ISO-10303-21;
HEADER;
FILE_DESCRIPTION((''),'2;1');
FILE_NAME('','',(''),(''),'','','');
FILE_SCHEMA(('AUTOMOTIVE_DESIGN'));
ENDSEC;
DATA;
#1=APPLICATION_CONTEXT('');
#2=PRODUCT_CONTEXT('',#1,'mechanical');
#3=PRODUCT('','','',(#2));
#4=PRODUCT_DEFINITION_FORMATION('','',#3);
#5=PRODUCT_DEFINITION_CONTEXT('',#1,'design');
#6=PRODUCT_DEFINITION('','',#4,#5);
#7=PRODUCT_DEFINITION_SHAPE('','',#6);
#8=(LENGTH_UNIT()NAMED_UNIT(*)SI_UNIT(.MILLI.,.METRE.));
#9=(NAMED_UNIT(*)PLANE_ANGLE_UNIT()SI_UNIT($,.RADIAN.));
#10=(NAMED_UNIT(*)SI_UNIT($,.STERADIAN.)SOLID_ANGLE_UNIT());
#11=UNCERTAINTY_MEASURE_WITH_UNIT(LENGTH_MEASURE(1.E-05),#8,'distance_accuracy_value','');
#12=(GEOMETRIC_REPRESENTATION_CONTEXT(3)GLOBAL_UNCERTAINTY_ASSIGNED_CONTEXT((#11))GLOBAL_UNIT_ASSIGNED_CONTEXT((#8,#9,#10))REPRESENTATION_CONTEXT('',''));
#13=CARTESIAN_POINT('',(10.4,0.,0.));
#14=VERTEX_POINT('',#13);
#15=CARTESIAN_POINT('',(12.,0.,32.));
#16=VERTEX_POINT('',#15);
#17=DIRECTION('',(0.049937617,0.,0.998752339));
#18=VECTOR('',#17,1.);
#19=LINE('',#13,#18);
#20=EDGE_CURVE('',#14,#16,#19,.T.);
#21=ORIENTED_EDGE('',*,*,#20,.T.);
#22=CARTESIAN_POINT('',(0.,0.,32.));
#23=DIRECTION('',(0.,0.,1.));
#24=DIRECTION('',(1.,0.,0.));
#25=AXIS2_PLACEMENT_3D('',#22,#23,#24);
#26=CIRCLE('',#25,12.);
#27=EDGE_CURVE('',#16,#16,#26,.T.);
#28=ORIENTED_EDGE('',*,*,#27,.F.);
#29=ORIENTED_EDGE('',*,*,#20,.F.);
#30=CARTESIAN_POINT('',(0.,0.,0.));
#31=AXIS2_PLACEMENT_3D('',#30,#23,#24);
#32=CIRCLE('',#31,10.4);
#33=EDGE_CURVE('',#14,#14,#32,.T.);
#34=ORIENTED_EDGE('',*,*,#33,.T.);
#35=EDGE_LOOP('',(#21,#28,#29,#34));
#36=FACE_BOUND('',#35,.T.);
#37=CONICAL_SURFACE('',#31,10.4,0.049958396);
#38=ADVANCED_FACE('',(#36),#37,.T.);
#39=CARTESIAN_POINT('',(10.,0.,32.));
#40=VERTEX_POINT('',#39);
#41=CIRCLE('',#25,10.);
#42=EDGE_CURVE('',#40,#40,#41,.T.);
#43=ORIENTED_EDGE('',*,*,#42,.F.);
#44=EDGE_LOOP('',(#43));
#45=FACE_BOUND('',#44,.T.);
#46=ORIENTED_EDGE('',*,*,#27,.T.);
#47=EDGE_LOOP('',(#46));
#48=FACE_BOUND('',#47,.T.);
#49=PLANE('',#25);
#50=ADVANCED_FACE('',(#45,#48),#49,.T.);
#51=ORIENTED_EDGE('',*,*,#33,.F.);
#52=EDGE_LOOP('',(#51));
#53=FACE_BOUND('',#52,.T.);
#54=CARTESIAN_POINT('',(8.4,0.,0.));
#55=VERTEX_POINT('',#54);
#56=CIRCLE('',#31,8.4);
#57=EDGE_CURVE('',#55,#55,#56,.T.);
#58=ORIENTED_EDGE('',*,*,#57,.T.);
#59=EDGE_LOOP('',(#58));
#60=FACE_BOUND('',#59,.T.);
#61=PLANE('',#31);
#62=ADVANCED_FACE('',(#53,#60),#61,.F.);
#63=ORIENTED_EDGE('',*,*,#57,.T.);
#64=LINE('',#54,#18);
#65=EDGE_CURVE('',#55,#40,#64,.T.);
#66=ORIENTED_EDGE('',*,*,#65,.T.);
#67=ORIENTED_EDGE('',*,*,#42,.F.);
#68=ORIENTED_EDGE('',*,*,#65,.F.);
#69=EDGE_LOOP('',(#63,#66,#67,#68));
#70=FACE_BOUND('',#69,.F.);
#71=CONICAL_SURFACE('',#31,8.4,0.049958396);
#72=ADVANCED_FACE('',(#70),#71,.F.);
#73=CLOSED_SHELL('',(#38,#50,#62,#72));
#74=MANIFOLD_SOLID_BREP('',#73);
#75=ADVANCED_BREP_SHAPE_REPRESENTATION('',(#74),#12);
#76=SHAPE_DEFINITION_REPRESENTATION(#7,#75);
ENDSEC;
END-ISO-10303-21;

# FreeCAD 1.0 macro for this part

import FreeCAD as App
import Part
import Sketcher
Q = App.Units.Quantity

doc = App.newDocument("Part")
body = doc.addObject("PartDesign::Body", "Body")

sketch1 = doc.addObject("Sketcher::SketchObject", "Sketch")
body.addObject(sketch1)
sketch1.AttachmentSupport = (doc.XZ_Plane, [""])
sketch1.MapMode = "FlatFace"
sketch1.addGeometry(Part.LineSegment(App.Vector(0, 0, 0), App.Vector(8, 0, 0)), False)
sketch1.addGeometry(Part.LineSegment(App.Vector(8, 0, 0), App.Vector(10, 32, 0)), False)
sketch1.addGeometry(Part.LineSegment(App.Vector(10, 32, 0), App.Vector(0, 32, 0)), False)
sketch1.addGeometry(Part.LineSegment(App.Vector(0, 32, 0), App.Vector(0, 0, 0)), False)
sketch1.addConstraint(Sketcher.Constraint("Coincident", 0, 2, 1, 1))
sketch1.addConstraint(Sketcher.Constraint("Coincident", 1, 2, 2, 1))
sketch1.addConstraint(Sketcher.Constraint("Coincident", 2, 2, 3, 1))
sketch1.addConstraint(Sketcher.Constraint("Coincident", 3, 2, 0, 1))
sketch1.addConstraint(Sketcher.Constraint("Horizontal", 0))
sketch1.addConstraint(Sketcher.Constraint("Horizontal", 2))
sketch1.addConstraint(Sketcher.Constraint("Vertical", 3))
sketch1.addConstraint(Sketcher.Constraint("Coincident", 3, 2, -1, 1))
sketch1.addConstraint(Sketcher.Constraint("DistanceX", 2, 2, 2, 1, Q("10 mm")))
sketch1.addConstraint(Sketcher.Constraint("DistanceY", 3, 2, 3, 1, Q("32 mm")))
sketch1.addConstraint(Sketcher.Constraint("DistanceX", 0, 1, 0, 2, Q("8.4 mm")))
revolution = doc.addObject("PartDesign::Revolution", "Revolution")
body.addObject(revolution)
revolution.Profile = sketch1
revolution.ReferenceAxis = (sketch1, ["V_Axis"])
revolution.Angle = 360
body2 = doc.addObject("PartDesign::Body", "Body001")

sketch2 = doc.addObject("Sketcher::SketchObject", "Sketch001")
body2.addObject(sketch2)
sketch2.AttachmentSupport = (doc.getObject("XZ_Plane001"), [""])
sketch2.MapMode = "FlatFace"
sketch2.addGeometry(Part.LineSegment(App.Vector(0, 2, 0), App.Vector(10, 2, 0)), False)
sketch2.addGeometry(Part.LineSegment(App.Vector(10, 2, 0), App.Vector(12, 30, 0)), False)
sketch2.addGeometry(Part.LineSegment(App.Vector(12, 30, 0), App.Vector(0, 30, 0)), False)
sketch2.addGeometry(Part.LineSegment(App.Vector(0, 30, 0), App.Vector(0, 2, 0)), False)
sketch2.addConstraint(Sketcher.Constraint("Coincident", 0, 2, 1, 1))
sketch2.addConstraint(Sketcher.Constraint("Coincident", 1, 2, 2, 1))
sketch2.addConstraint(Sketcher.Constraint("Coincident", 2, 2, 3, 1))
sketch2.addConstraint(Sketcher.Constraint("Coincident", 3, 2, 0, 1))
sketch2.addConstraint(Sketcher.Constraint("Horizontal", 0))
sketch2.addConstraint(Sketcher.Constraint("Horizontal", 2))
sketch2.addConstraint(Sketcher.Constraint("Vertical", 3))
sketch2.addConstraint(Sketcher.Constraint("PointOnObject", 2, 2, -2))
sketch2.addConstraint(Sketcher.Constraint("DistanceY", 3, 2, 3, 1, Q("28 mm")))
sketch2.addConstraint(Sketcher.Constraint("DistanceX", 0, 1, 0, 2, Q("10.5 mm")))
sketch2.addConstraint(Sketcher.Constraint("DistanceX", 2, 2, 2, 1, Q("11.9 mm")))
sketch2.addConstraint(Sketcher.Constraint("DistanceY", -1, 1, 0, 2, Q("2 mm")))
revolution2 = doc.addObject("PartDesign::Revolution", "Revolution001")
body2.addObject(revolution2)
revolution2.Profile = sketch2
revolution2.ReferenceAxis = (sketch2, ["V_Axis"])
revolution2.Angle = 360
body3 = doc.addObject("PartDesign::Body", "Body002")

sketch3 = doc.addObject("Sketcher::SketchObject", "Sketch002")
body3.addObject(sketch3)
sketch3.AttachmentSupport = (doc.getObject("XZ_Plane002"), [""])
sketch3.MapMode = "FlatFace"
sketch3.addGeometry(Part.LineSegment(App.Vector(0, 0, 0), App.Vector(10, 0, 0)), False)
sketch3.addGeometry(Part.LineSegment(App.Vector(10, 0, 0), App.Vector(12, 32, 0)), False)
sketch3.addGeometry(Part.LineSegment(App.Vector(12, 32, 0), App.Vector(0, 32, 0)), False)
sketch3.addGeometry(Part.LineSegment(App.Vector(0, 32, 0), App.Vector(0, 0, 0)), False)
sketch3.addConstraint(Sketcher.Constraint("Coincident", 0, 2, 1, 1))
sketch3.addConstraint(Sketcher.Constraint("Coincident", 1, 2, 2, 1))
sketch3.addConstraint(Sketcher.Constraint("Coincident", 2, 2, 3, 1))
sketch3.addConstraint(Sketcher.Constraint("Coincident", 3, 2, 0, 1))
sketch3.addConstraint(Sketcher.Constraint("Horizontal", 0))
sketch3.addConstraint(Sketcher.Constraint("Horizontal", 2))
sketch3.addConstraint(Sketcher.Constraint("Vertical", 3))
sketch3.addConstraint(Sketcher.Constraint("Coincident", 3, 2, -1, 1))
sketch3.addConstraint(Sketcher.Constraint("DistanceX", 2, 2, 2, 1, Q("12 mm")))
sketch3.addConstraint(Sketcher.Constraint("DistanceY", 3, 2, 3, 1, Q("32 mm")))
sketch3.addConstraint(Sketcher.Constraint("DistanceX", 0, 1, 0, 2, Q("10.4 mm")))
revolution3 = doc.addObject("PartDesign::Revolution", "Revolution002")
body3.addObject(revolution3)
revolution3.Profile = sketch3
revolution3.ReferenceAxis = (sketch3, ["V_Axis"])
revolution3.Angle = 360
doc.recompute()

boolean = doc.addObject("PartDesign::Boolean", "Boolean")
body3.addObject(boolean)
boolean.Type = "Fuse"
boolean.addObjects([body2])
doc.recompute()

boolean2 = doc.addObject("PartDesign::Boolean", "Boolean001")
body3.addObject(boolean2)
boolean2.Type = "Cut"
boolean2.addObjects([body])

doc.recompute()
